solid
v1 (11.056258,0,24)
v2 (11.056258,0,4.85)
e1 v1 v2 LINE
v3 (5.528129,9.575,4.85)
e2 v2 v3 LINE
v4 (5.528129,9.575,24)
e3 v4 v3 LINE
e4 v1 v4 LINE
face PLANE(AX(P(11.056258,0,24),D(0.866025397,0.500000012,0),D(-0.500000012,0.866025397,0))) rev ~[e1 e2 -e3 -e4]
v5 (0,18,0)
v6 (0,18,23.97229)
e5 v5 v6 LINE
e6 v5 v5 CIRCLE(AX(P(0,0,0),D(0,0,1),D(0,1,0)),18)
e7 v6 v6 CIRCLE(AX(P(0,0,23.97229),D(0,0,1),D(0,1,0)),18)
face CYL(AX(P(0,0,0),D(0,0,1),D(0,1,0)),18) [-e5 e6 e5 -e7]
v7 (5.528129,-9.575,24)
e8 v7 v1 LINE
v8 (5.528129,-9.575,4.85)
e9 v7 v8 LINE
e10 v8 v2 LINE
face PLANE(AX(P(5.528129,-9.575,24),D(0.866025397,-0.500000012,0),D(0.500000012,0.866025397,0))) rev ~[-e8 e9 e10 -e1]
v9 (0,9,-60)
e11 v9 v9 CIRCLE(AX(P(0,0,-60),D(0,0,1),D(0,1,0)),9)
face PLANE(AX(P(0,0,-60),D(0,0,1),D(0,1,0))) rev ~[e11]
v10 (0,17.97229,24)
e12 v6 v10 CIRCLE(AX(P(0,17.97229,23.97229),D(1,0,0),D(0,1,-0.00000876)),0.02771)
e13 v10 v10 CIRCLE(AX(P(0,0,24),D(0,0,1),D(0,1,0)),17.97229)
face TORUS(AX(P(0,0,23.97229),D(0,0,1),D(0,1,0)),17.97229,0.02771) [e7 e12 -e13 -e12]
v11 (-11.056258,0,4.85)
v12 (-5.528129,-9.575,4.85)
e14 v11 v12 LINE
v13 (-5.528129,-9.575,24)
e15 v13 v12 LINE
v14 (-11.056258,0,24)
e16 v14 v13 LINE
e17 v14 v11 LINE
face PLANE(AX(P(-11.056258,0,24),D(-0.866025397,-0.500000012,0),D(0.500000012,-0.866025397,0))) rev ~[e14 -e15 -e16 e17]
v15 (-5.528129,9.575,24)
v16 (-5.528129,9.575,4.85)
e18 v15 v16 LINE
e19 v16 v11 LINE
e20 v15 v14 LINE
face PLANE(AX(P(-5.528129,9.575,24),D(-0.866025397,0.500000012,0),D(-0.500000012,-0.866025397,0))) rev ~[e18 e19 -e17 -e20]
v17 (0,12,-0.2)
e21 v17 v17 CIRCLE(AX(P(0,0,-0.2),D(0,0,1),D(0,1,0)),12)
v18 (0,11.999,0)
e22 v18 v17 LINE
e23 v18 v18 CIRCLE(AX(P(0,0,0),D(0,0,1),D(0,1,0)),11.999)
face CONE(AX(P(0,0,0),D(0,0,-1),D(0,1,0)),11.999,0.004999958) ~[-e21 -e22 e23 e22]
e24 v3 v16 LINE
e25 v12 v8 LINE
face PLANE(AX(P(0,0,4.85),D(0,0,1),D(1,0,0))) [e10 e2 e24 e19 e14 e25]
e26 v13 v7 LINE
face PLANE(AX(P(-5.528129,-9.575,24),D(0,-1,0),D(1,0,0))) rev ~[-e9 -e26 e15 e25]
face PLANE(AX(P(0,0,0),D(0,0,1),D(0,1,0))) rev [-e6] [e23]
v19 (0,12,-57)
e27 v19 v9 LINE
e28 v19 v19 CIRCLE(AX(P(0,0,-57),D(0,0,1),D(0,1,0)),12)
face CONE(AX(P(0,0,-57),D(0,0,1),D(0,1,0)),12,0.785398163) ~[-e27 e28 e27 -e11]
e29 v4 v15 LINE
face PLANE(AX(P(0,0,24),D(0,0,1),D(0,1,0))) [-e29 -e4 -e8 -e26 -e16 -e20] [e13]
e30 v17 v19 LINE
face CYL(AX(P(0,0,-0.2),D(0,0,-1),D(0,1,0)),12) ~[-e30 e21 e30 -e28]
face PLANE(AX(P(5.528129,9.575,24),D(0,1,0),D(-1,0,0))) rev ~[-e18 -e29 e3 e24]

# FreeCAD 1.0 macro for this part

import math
import FreeCAD as App
import Part
import Sketcher
from FreeCAD import Vector
Q = App.Units.Quantity

doc = App.newDocument("Part")
body = doc.addObject("PartDesign::Body", "Body")

# Sketch on YZ plane
sketch1 = body.newObject("Sketcher::SketchObject", "Sketch")
sketch1.AttachmentSupport = (doc.getObject("YZ_Plane"), [""])
sketch1.MapMode = "FlatFace"
sketch1.addGeometry([
    Part.LineSegment(Vector(11.999, 0, 0), Vector(18, 0, 0)),  # 0
    Part.LineSegment(Vector(18, 0, 0), Vector(18, 23.972, 0)),  # 1
    Part.ArcOfCircle(Part.Circle(Vector(17.972, 23.972, 0), Vector(0, 0, 1), 0.028), math.radians(0), math.radians(90)),  # 2
    Part.LineSegment(Vector(17.972, 24, 0), Vector(0, 24, 0)),  # 3
    Part.LineSegment(Vector(0, 24, 0), Vector(0, -60, 0)),  # 4
    Part.LineSegment(Vector(0, -60, 0), Vector(9, -60, 0)),  # 5
    Part.LineSegment(Vector(9, -60, 0), Vector(12, -57, 0)),  # 6
    Part.LineSegment(Vector(12, -57, 0), Vector(12, -0.2, 0)),  # 7
    Part.LineSegment(Vector(12, -0.2, 0), Vector(11.999, 0, 0)),  # 8
], False)
sketch1.addConstraint([
    Sketcher.Constraint("Coincident", 0, 2, 1, 1),
    Sketcher.Constraint("Coincident", 1, 2, 2, 1),
    Sketcher.Constraint("Coincident", 2, 2, 3, 1),
    Sketcher.Constraint("Coincident", 3, 2, 4, 1),
    Sketcher.Constraint("Coincident", 4, 2, 5, 1),
    Sketcher.Constraint("Coincident", 5, 2, 6, 1),
    Sketcher.Constraint("Coincident", 6, 2, 7, 1),
    Sketcher.Constraint("Coincident", 7, 2, 8, 1),
    Sketcher.Constraint("Coincident", 8, 2, 0, 1),
    Sketcher.Constraint("Horizontal", 0),
    Sketcher.Constraint("Vertical", 1),
    Sketcher.Constraint("Horizontal", 3),
    Sketcher.Constraint("Vertical", 4),
    Sketcher.Constraint("Horizontal", 5),
    Sketcher.Constraint("Vertical", 7),
    Sketcher.Constraint("PointOnObject", 0, 2, -1),
    Sketcher.Constraint("PointOnObject", 3, 2, -2),
    Sketcher.Constraint("Horizontal", 2, 3, 1, 2),
    Sketcher.Constraint("DistanceX", 5, 1, 5, 2, Q("9 mm")),
    Sketcher.Constraint("DistanceY", 4, 2, 4, 1, Q("84 mm")),
    Sketcher.Constraint("Angle", 6, Q("45 deg")),
    Sketcher.Constraint("DistanceY", 7, 1, 7, 2, Q("56.8 mm")),
    Sketcher.Constraint("DistanceX", -1, 1, 0, 2, Q("18 mm")),
    Sketcher.Constraint("DistanceY", -1, 1, 2, 2, Q("24 mm")),
    Sketcher.Constraint("DistanceX", -1, 1, 6, 2, Q("12 mm")),
    Sketcher.Constraint("DistanceX", 0, 1, 0, 2, Q("6.001 mm")),
    Sketcher.Constraint("Radius", 2, Q("0.02771 mm")),
    Sketcher.Constraint("DistanceX", 3, 2, 3, 1, Q("17.97229 mm")),
])
revolution = body.newObject("PartDesign::Revolution", "Revolution")
revolution.Profile = sketch1
revolution.ReferenceAxis = (sketch1, ["V_Axis"])
revolution.Angle = 360

# Sketch on XY plane
sketch2 = body.newObject("Sketcher::SketchObject", "Sketch001")
sketch2.AttachmentSupport = (doc.getObject("XY_Plane"), [""])
sketch2.MapMode = "FlatFace"
sketch2.AttachmentOffset = App.Placement(Vector(0, 0, 24), App.Rotation())
sketch2.addGeometry([
    Part.LineSegment(Vector(11, 0, 0), Vector(6, 10, 0)),  # 0
    Part.LineSegment(Vector(6, 10, 0), Vector(-6, 10, 0)),  # 1
    Part.LineSegment(Vector(-6, 10, 0), Vector(-11, 0, 0)),  # 2
    Part.LineSegment(Vector(-11, 0, 0), Vector(-6, -10, 0)),  # 3
    Part.LineSegment(Vector(-6, -10, 0), Vector(6, -10, 0)),  # 4
    Part.LineSegment(Vector(6, -10, 0), Vector(11, 0, 0)),  # 5
], False)
sketch2.addConstraint([
    Sketcher.Constraint("Coincident", 0, 2, 1, 1),
    Sketcher.Constraint("Coincident", 1, 2, 2, 1),
    Sketcher.Constraint("Coincident", 2, 2, 3, 1),
    Sketcher.Constraint("Coincident", 3, 2, 4, 1),
    Sketcher.Constraint("Coincident", 4, 2, 5, 1),
    Sketcher.Constraint("Coincident", 5, 2, 0, 1),
    Sketcher.Constraint("Horizontal", 1),
    Sketcher.Constraint("Horizontal", 4),
    Sketcher.Constraint("Symmetric", 0, 2, 3, 2, -1, 1),
    Sketcher.Constraint("Symmetric", 2, 2, 5, 2, -1, 1),
    Sketcher.Constraint("PointOnObject", 2, 2, -1),
    Sketcher.Constraint("Parallel", 2, 5),
    Sketcher.Constraint("Vertical", 1, 2, 3, 2),
    Sketcher.Constraint("Angle", 0, Q("120.000001 deg")),
    Sketcher.Constraint("DistanceY", 3, 2, 1, 2, Q("19.15 mm")),
    Sketcher.Constraint("DistanceX", 1, 2, 1, 1, Q("11.056258 mm")),
])
pocket1 = body.newObject("PartDesign::Pocket", "Pocket")
pocket1.Profile = sketch2
pocket1.Length = 19.15

doc.recompute()
